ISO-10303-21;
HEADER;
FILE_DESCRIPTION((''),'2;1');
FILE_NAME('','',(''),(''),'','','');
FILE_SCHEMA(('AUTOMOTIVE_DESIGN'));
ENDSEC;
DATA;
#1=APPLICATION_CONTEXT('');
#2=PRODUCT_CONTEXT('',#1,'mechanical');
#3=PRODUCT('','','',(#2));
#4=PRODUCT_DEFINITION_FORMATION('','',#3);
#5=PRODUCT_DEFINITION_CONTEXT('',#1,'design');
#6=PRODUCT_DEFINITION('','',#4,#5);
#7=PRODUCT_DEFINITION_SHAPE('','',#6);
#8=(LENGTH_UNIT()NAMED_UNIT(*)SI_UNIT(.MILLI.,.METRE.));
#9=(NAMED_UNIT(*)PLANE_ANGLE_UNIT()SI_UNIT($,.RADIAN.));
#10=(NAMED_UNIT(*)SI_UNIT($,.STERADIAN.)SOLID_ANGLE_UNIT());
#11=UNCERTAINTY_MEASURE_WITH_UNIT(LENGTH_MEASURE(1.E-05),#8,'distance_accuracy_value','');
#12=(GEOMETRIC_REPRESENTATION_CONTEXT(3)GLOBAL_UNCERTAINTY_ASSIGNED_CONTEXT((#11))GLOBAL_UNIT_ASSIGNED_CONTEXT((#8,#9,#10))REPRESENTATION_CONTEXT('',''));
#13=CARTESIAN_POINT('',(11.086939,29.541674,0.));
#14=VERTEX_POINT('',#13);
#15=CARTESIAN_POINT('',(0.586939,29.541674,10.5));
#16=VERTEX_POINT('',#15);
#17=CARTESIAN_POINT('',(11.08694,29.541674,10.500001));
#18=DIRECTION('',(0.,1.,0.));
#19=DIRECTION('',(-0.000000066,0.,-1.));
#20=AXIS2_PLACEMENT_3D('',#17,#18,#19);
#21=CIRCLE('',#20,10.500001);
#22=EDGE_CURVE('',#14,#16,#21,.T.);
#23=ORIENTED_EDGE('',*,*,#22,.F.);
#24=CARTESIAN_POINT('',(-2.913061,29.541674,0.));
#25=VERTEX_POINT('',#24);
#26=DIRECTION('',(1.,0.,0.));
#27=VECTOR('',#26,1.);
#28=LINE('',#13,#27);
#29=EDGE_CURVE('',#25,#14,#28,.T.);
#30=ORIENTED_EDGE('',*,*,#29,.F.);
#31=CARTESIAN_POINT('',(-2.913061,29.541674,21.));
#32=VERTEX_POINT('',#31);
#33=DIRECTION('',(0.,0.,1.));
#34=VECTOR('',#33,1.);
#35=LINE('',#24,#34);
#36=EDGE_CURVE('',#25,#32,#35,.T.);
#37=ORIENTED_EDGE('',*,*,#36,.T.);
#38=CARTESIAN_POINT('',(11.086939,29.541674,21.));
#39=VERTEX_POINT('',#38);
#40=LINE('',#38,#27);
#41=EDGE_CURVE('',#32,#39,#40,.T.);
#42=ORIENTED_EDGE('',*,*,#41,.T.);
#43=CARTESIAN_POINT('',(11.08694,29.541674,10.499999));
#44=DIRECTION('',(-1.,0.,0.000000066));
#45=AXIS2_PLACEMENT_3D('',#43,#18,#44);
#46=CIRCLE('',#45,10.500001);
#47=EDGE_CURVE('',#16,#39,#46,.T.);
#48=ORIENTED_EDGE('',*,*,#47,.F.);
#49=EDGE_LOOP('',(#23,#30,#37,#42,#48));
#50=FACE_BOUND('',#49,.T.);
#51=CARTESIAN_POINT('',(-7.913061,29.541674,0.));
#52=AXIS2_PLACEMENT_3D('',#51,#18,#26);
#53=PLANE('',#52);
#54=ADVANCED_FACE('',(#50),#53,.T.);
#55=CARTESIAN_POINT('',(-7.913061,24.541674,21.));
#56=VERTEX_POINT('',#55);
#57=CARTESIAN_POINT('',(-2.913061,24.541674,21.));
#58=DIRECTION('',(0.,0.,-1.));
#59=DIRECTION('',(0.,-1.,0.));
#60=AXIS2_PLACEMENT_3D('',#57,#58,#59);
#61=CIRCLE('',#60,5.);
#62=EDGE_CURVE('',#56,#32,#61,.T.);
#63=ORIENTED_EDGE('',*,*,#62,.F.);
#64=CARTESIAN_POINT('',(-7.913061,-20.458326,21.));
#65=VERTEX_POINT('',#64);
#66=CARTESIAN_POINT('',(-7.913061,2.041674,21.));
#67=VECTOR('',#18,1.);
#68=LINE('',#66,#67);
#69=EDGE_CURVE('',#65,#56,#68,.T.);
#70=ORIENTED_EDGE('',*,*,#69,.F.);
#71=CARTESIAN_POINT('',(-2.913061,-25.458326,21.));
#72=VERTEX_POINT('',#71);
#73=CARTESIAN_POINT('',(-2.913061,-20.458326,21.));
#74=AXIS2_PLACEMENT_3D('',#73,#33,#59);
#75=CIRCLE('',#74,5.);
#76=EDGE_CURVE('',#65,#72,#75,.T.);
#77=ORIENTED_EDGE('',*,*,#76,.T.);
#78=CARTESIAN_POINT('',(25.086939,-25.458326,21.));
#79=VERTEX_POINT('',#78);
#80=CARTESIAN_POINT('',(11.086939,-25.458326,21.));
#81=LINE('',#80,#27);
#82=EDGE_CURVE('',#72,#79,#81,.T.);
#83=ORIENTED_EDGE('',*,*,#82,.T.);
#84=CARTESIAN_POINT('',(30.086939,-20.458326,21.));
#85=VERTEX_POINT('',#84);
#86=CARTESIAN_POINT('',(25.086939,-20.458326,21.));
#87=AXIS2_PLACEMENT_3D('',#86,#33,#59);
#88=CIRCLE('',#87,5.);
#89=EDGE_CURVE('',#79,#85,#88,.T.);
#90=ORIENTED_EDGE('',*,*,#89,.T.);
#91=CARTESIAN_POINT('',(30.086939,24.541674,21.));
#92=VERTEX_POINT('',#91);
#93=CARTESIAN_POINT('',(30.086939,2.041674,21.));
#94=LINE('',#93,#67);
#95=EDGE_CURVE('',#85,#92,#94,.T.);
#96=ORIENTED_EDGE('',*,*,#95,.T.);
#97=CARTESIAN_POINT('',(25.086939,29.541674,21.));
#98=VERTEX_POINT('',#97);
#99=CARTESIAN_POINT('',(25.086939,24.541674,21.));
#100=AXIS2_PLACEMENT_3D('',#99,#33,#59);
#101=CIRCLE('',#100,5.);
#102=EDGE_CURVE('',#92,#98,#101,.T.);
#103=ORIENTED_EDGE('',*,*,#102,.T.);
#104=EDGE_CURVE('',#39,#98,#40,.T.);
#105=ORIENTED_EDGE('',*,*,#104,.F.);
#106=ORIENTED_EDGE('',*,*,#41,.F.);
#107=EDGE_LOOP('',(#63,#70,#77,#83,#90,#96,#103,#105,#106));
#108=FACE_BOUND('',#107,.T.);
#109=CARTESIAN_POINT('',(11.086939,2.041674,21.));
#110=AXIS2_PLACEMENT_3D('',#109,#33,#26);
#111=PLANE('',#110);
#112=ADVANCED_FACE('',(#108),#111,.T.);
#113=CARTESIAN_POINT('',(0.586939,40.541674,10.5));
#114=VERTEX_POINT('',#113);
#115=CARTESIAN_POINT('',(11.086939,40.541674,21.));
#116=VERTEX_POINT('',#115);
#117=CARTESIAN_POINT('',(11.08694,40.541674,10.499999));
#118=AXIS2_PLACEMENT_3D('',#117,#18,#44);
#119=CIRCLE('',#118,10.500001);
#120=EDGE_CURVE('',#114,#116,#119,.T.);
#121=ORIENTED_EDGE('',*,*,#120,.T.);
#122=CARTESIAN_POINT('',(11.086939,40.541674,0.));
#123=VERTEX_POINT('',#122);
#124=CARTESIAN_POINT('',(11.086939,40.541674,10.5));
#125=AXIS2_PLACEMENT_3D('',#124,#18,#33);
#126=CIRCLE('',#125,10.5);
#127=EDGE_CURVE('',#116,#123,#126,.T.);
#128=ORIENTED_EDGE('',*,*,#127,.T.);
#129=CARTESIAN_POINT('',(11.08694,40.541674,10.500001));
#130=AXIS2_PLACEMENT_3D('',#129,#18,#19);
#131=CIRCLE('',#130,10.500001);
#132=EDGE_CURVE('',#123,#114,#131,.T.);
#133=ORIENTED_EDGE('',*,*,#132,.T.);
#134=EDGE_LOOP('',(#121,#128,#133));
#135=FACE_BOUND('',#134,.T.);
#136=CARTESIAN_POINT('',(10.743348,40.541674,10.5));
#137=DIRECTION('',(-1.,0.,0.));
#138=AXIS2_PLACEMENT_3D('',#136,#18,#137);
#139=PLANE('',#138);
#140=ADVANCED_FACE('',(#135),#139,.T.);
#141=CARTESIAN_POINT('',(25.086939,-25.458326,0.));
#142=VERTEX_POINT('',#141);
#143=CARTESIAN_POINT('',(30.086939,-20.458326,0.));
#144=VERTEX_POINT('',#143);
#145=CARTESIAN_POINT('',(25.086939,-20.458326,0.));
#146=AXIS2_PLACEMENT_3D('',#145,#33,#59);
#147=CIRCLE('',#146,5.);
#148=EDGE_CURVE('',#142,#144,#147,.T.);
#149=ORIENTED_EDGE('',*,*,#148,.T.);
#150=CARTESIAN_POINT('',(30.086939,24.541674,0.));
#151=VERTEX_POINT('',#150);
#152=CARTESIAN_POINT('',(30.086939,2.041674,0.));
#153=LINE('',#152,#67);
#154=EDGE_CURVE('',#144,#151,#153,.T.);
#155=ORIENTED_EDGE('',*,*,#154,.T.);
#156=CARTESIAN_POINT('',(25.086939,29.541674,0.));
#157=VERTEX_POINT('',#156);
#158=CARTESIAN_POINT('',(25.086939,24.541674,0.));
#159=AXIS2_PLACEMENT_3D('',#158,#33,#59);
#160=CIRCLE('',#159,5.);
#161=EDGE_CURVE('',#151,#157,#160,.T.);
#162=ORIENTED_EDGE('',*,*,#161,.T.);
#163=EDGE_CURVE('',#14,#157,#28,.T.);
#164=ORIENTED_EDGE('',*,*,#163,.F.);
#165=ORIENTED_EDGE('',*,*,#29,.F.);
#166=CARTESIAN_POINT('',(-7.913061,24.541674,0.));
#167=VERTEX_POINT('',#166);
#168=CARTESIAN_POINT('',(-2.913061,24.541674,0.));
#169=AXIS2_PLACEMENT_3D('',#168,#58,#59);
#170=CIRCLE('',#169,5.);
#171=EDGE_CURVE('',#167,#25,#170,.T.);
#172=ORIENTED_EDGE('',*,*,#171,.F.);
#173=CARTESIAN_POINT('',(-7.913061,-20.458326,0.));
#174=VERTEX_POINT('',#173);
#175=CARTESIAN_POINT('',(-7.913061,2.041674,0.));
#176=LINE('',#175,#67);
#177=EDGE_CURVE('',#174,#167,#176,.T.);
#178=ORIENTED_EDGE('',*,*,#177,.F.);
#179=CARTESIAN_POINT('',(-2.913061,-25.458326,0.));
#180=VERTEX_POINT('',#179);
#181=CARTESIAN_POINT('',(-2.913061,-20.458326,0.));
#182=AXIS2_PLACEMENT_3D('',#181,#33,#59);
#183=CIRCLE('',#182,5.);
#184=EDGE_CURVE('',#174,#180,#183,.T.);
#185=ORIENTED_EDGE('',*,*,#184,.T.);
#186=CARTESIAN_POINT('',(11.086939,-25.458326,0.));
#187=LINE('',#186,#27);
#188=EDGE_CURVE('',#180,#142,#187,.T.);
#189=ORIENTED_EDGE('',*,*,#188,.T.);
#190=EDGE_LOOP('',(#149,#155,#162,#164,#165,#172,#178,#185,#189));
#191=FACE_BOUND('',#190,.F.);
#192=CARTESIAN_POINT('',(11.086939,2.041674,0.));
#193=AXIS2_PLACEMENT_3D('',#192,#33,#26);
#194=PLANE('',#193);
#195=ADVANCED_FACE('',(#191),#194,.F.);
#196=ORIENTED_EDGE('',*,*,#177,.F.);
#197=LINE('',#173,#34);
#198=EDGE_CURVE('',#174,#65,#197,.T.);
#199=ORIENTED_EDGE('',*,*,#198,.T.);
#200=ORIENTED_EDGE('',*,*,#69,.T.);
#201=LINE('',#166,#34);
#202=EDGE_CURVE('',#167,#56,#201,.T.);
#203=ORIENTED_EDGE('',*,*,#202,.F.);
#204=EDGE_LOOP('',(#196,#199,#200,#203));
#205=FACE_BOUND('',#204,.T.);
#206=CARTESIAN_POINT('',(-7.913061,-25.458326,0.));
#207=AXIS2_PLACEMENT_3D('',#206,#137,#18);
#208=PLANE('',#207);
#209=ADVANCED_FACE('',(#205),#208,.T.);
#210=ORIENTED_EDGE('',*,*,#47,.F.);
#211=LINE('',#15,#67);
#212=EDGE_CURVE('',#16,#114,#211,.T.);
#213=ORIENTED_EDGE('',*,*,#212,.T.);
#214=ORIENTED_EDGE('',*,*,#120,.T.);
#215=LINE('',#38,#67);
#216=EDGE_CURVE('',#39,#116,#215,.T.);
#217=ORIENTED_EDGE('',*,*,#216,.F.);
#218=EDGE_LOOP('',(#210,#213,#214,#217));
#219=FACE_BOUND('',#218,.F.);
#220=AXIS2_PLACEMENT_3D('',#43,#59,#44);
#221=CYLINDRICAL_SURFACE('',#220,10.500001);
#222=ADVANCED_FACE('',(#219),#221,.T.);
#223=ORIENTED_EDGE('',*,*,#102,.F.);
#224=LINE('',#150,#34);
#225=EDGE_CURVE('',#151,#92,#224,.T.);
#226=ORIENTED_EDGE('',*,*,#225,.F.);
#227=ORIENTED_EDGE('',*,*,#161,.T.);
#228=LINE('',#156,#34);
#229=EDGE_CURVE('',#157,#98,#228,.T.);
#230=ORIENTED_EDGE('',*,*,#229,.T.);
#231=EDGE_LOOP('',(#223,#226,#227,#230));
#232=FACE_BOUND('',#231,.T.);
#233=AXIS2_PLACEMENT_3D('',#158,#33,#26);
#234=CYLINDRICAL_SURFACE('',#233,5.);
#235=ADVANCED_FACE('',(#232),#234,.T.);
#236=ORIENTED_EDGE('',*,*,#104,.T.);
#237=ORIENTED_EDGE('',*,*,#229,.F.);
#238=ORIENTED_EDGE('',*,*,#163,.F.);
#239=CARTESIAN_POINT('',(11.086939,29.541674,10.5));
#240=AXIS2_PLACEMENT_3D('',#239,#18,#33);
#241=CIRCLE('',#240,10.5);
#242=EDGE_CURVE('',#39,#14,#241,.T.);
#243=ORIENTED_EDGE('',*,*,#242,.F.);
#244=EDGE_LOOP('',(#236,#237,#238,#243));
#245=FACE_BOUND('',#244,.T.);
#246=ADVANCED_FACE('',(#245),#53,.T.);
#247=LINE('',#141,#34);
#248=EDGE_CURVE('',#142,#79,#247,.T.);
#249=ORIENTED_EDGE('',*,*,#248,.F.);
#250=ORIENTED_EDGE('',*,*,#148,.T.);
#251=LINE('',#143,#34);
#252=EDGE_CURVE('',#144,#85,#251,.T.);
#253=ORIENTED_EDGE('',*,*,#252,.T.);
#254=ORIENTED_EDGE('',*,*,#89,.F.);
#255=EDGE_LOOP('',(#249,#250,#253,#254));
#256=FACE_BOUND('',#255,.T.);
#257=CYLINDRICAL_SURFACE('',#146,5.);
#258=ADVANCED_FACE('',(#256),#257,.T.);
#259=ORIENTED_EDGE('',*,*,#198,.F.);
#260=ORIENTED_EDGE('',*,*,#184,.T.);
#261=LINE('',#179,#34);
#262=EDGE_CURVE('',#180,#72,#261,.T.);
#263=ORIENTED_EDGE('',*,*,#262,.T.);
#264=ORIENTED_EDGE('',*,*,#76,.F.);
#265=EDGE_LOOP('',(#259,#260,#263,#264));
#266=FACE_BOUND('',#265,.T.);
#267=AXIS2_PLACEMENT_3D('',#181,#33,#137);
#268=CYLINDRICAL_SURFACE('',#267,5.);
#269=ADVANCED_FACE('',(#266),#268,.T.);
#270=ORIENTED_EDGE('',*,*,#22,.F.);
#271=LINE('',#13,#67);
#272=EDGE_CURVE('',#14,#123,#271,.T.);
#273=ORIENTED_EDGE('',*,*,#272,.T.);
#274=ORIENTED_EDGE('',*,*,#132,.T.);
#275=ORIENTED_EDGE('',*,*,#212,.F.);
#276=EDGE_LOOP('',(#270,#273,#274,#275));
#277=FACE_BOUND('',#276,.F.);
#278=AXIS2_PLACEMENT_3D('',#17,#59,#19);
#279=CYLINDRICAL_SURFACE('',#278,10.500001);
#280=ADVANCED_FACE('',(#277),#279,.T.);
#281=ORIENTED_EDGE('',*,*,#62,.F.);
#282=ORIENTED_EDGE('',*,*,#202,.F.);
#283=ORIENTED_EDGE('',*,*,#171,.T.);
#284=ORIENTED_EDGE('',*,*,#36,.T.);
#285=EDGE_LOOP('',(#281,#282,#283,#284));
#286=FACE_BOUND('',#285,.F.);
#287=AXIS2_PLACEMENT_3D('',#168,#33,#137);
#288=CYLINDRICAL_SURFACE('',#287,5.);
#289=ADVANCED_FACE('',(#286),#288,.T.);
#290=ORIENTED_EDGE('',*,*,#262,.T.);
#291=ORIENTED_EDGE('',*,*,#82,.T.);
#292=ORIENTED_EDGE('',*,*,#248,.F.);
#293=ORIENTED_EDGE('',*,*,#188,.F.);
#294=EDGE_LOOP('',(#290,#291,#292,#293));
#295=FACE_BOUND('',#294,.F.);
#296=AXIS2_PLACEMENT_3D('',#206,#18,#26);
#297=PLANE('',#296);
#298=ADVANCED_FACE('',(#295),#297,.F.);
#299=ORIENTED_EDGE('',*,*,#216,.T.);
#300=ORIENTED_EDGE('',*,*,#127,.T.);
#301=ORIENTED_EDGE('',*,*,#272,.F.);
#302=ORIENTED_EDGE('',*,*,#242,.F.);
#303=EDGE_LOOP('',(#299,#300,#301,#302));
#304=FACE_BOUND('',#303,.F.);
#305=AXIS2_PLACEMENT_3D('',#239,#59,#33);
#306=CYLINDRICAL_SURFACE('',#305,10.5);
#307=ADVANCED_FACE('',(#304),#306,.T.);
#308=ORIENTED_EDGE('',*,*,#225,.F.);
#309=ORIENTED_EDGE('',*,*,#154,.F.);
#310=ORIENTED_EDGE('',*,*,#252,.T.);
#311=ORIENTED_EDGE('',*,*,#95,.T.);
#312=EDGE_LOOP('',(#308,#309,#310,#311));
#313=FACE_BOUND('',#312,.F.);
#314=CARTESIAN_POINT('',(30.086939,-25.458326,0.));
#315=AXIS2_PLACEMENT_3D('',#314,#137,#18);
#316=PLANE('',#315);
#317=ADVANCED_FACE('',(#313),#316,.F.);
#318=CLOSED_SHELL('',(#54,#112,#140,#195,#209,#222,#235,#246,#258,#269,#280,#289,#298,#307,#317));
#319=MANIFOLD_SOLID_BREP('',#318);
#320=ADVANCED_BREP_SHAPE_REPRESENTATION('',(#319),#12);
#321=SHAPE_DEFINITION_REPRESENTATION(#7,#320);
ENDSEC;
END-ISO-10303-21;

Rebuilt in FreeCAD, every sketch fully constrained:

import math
import FreeCAD as App
import Part
import Sketcher
from FreeCAD import Vector
Q = App.Units.Quantity


def edges_at(feature, points):
    """Names of the edges that pass closest to the given points."""
    edges = feature.Shape.Edges
    near = lambda p: min(range(len(edges)), key=lambda i: edges[i].distToShape(Part.Vertex(*p))[0])
    return sorted({f"Edge{near(p) + 1}" for p in points})

doc = App.newDocument("Part")
body = doc.addObject("PartDesign::Body", "Body")

# Sketch on XY plane
sketch1 = body.newObject("Sketcher::SketchObject", "Sketch")
sketch1.AttachmentSupport = (doc.getObject("XY_Plane"), [""])
sketch1.MapMode = "FlatFace"
sketch1.addGeometry([
    Part.LineSegment(Vector(-8, 30, 0), Vector(-8, -25, 0)),
    Part.LineSegment(Vector(-8, -25, 0), Vector(30, -25, 0)),
    Part.LineSegment(Vector(30, -25, 0), Vector(30, 30, 0)),
    Part.LineSegment(Vector(30, 30, 0), Vector(-8, 30, 0)),
], False)
sketch1.addConstraint([
    Sketcher.Constraint("Coincident", 0, 2, 1, 1),
    Sketcher.Constraint("Coincident", 1, 2, 2, 1),
    Sketcher.Constraint("Coincident", 2, 2, 3, 1),
    Sketcher.Constraint("Coincident", 3, 2, 0, 1),
    Sketcher.Constraint("Vertical", 0),
    Sketcher.Constraint("Horizontal", 1),
    Sketcher.Constraint("Vertical", 2),
    Sketcher.Constraint("Horizontal", 3),
    Sketcher.Constraint("DistanceX", 1, 1, 1, 2, Q("38 mm")),
    Sketcher.Constraint("DistanceY", 0, 2, 0, 1, Q("55 mm")),
    Sketcher.Constraint("DistanceX", 0, 2, -1, 1, Q("7.913061 mm")),
    Sketcher.Constraint("DistanceY", 0, 2, -1, 1, Q("25.458326 mm")),
])
pad1 = body.newObject("PartDesign::Pad", "Pad")
pad1.Profile = sketch1
pad1.Length = 21

# Sketch on XZ plane
sketch2 = body.newObject("Sketcher::SketchObject", "Sketch001")
sketch2.AttachmentSupport = (doc.getObject("XZ_Plane"), [""])
sketch2.MapMode = "FlatFace"
sketch2.AttachmentOffset = App.Placement(Vector(0, 0, -29.541674), App.Rotation())
sketch2.addGeometry([
    Part.ArcOfCircle(Part.Circle(Vector(11, 11, 0), Vector(0, 0, 1), 11), math.radians(-180), math.radians(-90)),
    Part.ArcOfCircle(Part.Circle(Vector(11, 10, 0), Vector(0, 0, 1), 11), math.radians(90), math.radians(180)),
    Part.ArcOfCircle(Part.Circle(Vector(11, 10, 0), Vector(0, 0, 1), 10), math.radians(-90), math.radians(90)),
], False)
sketch2.addConstraint([
    Sketcher.Constraint("Tangent", 0, 1, 1, 2),
    Sketcher.Constraint("Tangent", 1, 1, 2, 2),
    Sketcher.Constraint("Tangent", 2, 1, 0, 2),
    Sketcher.Constraint("PointOnObject", 2, 1, -1),
    Sketcher.Constraint("Horizontal", 2, 3, 0, 1),
    Sketcher.Constraint("Vertical", 2, 3, 1, 1),
    Sketcher.Constraint("Vertical", 1, 1, 2, 1),
    Sketcher.Constraint("Radius", 0, Q("10.500001 mm")),
    Sketcher.Constraint("DistanceX", -1, 1, 0, 3, Q("11.08694 mm")),
])
pad2 = body.newObject("PartDesign::Pad", "Pad001")
pad2.Profile = sketch2
pad2.Length = 11
pad2.Reversed = True
doc.recompute()

fillet = body.newObject("PartDesign::Fillet", "Fillet")
fillet.Base = (pad2, edges_at(pad2, [
    (-7.913, 29.542, 10.5),
    (30.087, 29.542, 10.5),
    (30.087, -25.458, 10.5),
    (-7.913, -25.458, 10.5),
]))
fillet.Radius = 5

doc.recompute()
